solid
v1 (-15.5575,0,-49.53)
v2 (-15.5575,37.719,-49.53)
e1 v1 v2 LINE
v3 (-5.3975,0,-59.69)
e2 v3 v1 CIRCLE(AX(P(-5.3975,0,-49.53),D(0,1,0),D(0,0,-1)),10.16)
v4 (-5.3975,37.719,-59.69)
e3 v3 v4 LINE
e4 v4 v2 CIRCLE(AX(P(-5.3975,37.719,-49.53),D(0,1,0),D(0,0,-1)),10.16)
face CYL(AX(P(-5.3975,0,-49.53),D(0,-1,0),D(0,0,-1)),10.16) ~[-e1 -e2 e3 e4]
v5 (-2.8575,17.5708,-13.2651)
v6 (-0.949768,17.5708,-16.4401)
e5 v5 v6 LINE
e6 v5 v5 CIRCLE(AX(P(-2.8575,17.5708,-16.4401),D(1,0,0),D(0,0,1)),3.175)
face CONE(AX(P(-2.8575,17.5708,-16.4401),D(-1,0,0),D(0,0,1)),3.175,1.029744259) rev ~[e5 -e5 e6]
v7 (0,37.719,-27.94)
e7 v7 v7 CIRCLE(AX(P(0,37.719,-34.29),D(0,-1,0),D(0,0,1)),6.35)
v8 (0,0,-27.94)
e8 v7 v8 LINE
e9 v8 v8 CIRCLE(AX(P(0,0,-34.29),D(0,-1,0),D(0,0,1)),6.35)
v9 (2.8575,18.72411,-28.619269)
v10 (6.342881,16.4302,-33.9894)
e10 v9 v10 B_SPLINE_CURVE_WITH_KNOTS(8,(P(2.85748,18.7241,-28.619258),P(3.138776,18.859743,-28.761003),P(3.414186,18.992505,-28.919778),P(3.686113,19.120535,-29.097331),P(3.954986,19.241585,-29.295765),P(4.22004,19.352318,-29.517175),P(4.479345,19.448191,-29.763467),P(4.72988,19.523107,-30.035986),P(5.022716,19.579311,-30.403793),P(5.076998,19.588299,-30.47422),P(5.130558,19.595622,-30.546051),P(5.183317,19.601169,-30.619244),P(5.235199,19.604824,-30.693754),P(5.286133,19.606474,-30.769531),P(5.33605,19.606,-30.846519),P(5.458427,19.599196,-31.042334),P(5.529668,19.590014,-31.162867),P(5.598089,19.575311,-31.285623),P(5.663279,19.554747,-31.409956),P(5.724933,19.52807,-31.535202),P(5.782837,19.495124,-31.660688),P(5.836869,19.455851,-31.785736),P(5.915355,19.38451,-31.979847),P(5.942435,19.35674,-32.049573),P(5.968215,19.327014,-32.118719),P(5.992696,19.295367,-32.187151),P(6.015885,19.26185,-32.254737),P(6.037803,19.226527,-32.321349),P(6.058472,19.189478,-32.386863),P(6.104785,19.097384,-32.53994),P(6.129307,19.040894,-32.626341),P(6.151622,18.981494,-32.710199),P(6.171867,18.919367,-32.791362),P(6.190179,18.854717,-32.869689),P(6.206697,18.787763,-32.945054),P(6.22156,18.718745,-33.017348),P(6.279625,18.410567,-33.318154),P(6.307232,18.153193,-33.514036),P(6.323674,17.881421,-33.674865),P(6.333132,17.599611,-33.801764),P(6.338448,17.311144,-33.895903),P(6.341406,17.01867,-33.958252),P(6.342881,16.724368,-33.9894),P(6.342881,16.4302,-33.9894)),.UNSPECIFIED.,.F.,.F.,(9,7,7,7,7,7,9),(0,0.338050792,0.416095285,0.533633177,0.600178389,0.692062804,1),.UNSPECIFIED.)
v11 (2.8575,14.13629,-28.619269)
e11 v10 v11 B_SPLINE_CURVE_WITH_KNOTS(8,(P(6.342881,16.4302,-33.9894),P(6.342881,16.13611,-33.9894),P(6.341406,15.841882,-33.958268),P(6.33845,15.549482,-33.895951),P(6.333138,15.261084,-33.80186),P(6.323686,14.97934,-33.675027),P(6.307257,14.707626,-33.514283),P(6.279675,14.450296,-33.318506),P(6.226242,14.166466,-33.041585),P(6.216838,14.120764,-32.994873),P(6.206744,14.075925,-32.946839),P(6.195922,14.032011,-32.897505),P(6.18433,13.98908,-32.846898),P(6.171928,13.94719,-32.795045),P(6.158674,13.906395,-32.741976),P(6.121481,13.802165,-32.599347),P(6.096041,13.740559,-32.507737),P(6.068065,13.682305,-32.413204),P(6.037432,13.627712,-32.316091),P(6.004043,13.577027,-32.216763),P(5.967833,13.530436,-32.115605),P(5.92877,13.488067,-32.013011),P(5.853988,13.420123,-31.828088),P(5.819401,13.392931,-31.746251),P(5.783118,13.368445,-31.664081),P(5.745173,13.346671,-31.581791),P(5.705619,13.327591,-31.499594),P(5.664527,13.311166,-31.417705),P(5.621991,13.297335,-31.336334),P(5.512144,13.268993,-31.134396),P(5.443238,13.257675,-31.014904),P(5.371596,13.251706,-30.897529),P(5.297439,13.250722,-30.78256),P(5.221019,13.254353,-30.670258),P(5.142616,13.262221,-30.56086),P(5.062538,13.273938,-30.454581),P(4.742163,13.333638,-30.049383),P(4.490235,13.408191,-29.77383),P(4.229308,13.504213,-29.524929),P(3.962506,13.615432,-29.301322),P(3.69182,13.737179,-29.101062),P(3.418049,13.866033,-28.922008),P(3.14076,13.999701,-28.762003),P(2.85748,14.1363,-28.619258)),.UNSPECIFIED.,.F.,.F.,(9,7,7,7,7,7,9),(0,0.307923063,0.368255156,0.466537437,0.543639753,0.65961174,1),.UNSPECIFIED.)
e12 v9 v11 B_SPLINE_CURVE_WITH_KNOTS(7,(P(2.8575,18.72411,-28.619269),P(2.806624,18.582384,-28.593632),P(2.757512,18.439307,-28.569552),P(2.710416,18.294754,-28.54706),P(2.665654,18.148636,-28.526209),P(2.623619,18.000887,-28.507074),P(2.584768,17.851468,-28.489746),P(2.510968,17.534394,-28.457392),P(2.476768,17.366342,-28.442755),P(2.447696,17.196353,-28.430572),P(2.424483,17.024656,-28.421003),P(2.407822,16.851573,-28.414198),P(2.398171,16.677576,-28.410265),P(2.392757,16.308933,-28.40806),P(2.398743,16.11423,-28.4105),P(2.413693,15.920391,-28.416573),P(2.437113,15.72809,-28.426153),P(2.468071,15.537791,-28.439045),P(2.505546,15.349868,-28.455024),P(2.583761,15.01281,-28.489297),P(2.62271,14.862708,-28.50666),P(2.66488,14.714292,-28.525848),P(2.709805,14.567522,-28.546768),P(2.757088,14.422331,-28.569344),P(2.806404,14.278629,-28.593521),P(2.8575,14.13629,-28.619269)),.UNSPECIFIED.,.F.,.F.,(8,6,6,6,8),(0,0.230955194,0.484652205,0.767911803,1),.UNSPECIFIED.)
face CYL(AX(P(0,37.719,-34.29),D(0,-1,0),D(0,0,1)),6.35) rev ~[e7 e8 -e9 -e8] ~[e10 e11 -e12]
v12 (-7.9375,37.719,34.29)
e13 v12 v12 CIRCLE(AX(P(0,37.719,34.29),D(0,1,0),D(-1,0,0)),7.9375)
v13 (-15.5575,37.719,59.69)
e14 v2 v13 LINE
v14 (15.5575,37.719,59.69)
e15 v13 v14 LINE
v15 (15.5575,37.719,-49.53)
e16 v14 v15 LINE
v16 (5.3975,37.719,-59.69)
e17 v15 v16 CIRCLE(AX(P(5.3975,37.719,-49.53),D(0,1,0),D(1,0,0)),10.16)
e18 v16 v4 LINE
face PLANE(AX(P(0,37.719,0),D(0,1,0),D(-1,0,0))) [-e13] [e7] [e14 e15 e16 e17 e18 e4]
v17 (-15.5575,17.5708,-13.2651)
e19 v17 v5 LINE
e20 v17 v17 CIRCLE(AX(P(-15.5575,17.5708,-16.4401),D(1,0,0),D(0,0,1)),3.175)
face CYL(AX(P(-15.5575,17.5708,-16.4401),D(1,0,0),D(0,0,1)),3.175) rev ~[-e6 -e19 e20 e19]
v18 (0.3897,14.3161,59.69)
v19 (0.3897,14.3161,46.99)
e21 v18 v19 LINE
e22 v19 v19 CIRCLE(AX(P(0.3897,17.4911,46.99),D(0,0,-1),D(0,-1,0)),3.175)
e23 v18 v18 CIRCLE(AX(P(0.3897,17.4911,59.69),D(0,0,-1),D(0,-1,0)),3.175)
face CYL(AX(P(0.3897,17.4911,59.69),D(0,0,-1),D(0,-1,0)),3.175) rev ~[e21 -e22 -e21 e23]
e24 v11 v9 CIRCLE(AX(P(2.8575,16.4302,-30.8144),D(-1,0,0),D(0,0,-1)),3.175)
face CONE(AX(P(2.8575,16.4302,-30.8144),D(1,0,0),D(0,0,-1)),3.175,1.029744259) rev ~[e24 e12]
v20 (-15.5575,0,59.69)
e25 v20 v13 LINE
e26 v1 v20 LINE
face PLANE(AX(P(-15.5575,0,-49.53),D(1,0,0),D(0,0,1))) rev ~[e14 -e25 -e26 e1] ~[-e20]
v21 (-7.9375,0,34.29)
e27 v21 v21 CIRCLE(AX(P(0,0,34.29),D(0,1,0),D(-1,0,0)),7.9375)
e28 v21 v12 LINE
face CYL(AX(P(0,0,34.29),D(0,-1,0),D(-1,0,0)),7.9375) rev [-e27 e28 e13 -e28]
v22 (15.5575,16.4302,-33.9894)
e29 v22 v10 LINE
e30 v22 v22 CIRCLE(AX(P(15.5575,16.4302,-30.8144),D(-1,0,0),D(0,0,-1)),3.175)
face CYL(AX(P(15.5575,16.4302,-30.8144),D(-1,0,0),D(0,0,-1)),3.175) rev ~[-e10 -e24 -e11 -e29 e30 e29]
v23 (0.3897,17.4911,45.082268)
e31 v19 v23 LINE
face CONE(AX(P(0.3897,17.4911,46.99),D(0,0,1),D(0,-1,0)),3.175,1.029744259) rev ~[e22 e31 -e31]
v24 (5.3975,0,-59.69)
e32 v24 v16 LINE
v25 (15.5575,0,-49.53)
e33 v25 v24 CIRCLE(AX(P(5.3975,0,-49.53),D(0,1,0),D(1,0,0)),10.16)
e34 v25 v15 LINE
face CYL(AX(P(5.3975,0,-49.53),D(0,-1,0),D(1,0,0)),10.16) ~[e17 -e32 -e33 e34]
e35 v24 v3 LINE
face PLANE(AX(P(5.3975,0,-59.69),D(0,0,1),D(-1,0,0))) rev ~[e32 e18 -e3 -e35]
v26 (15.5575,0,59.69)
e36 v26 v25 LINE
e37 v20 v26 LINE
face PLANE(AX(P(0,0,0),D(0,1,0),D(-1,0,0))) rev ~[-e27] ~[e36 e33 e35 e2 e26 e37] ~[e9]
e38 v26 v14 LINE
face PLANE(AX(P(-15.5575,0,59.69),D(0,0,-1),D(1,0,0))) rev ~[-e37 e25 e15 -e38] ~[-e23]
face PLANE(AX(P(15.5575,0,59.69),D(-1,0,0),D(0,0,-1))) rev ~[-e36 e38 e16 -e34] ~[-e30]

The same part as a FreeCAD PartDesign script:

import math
import FreeCAD as App
import Part
import Sketcher

V = App.Vector
Q = App.Units.Quantity

doc = App.newDocument("Part")
body = doc.addObject("PartDesign::Body", "Body")

sketch1 = body.newObject("Sketcher::SketchObject", "Sketch")
sketch1.AttachmentSupport = (doc.getObject("XZ_Plane"), [""])
sketch1.MapMode = "FlatFace"
sketch1.addGeometry([
    Part.ArcOfCircle(Part.Circle(V(5, -50, 0), V(0, 0, 1), 10), math.radians(-90), math.radians(0)),
    Part.LineSegment(V(5, -60, 0), V(-5, -60, 0)),
    Part.ArcOfCircle(Part.Circle(V(-5, -50, 0), V(0, 0, 1), 10), math.radians(180), math.radians(270)),
    Part.LineSegment(V(-16, -50, 0), V(-16, 60, 0)),
    Part.LineSegment(V(-16, 60, 0), V(16, 60, 0)),
    Part.LineSegment(V(16, 60, 0), V(16, -50, 0)),
    Part.Circle(V(0, 34, 0), V(0, 0, 1), 8),
], False)
sketch1.addConstraint([
    Sketcher.Constraint("Tangent", 0, 1, 1, 1),
    Sketcher.Constraint("Tangent", 1, 2, 2, 2),
    Sketcher.Constraint("Tangent", 2, 1, 3, 1),
    Sketcher.Constraint("Coincident", 3, 2, 4, 1),
    Sketcher.Constraint("Coincident", 4, 2, 5, 1),
    Sketcher.Constraint("Tangent", 5, 2, 0, 2),
    Sketcher.Constraint("Horizontal", 1),
    Sketcher.Constraint("Vertical", 3),
    Sketcher.Constraint("Horizontal", 4),
    Sketcher.Constraint("Vertical", 5),
    Sketcher.Constraint("Equal", 0, 2),
    Sketcher.Constraint("PointOnObject", 6, 3, -2),
    Sketcher.Constraint("Radius", 0, Q("0.4 in")),
    Sketcher.Constraint("Diameter", 6, Q("0.625 in")),
    Sketcher.Constraint("DistanceY", 6, 3, 3, 2, Q("1 in")),
    Sketcher.Constraint("DistanceY", 1, 2, 3, 2, Q("4.7 in")),
    Sketcher.Constraint("DistanceX", 4, 1, 4, 2, Q("1.225 in")),
    Sketcher.Constraint("DistanceY", 0, 3, -1, 1, Q("1.95 in")),
    Sketcher.Constraint("DistanceX", -1, 1, 0, 3, Q("0.2125 in")),
])
pad1 = body.newObject("PartDesign::Pad", "Pad")
pad1.Profile = sketch1
pad1.Length = Q("1.485 in")
pad1.Reversed = True

sketch2 = body.newObject("Sketcher::SketchObject", "Sketch001")
sketch2.AttachmentSupport = (doc.getObject("XZ_Plane"), [""])
sketch2.MapMode = "FlatFace"
sketch2.AttachmentOffset = App.Placement(V(0, 0, -1.485 * 25.4), App.Rotation())
sketch2.addGeometry(Part.Circle(V(0, -34, 0), V(0, 0, 1), 6), False)
sketch2.addConstraint([
    Sketcher.Constraint("PointOnObject", 0, 3, -2),
    Sketcher.Constraint("Diameter", 0, Q("0.5 in")),
    Sketcher.Constraint("DistanceY", 0, 3, -1, 1, Q("1.35 in")),
])
doc.recompute()
hole = body.newObject("PartDesign::Hole", "Hole")
hole.Profile = sketch2
hole.ThreadType = "None"
hole.Diameter = Q("0.5 in")
hole.DepthType = "ThroughAll"
hole.Reversed = True

sketch3 = body.newObject("Sketcher::SketchObject", "Sketch002")
sketch3.AttachmentSupport = (doc.getObject("XY_Plane"), [""])
sketch3.MapMode = "FlatFace"
sketch3.AttachmentOffset = App.Placement(V(0, 0, 2.35 * 25.4), App.Rotation())
sketch3.addGeometry(Part.Circle(V(0.4, 17.5, 0), V(0, 0, 1), 3.2), False)
sketch3.addConstraint([
    Sketcher.Constraint("Diameter", 0, Q("0.25 in")),
    Sketcher.Constraint("DistanceX", -1, 1, 0, 3, 0.3897),
    Sketcher.Constraint("DistanceY", -1, 1, 0, 3, 17.491),
])
doc.recompute()
hole2 = body.newObject("PartDesign::Hole", "Hole001")
hole2.Profile = sketch3
hole2.ThreadType = "None"
hole2.Diameter = Q("0.25 in")
hole2.DepthType = "Dimension"
hole2.Depth = Q("0.5 in")
hole2.DrillPoint = "Angled"
hole2.DrillPointAngle = 118

sketch4 = body.newObject("Sketcher::SketchObject", "Sketch003")
sketch4.AttachmentSupport = (doc.getObject("YZ_Plane"), [""])
sketch4.MapMode = "FlatFace"
sketch4.AttachmentOffset = App.Placement(V(0, 0, -0.6125 * 25.4), App.Rotation())
sketch4.addGeometry(Part.Circle(V(17.6, -16.4, 0), V(0, 0, 1), 3.2), False)
sketch4.addConstraint([
    Sketcher.Constraint("Diameter", 0, Q("0.25 in")),
    Sketcher.Constraint("DistanceX", -1, 1, 0, 3, 17.5708),
    Sketcher.Constraint("DistanceY", 0, 3, -1, 1, 16.44),
])
doc.recompute()
hole3 = body.newObject("PartDesign::Hole", "Hole002")
hole3.Profile = sketch4
hole3.ThreadType = "None"
hole3.Diameter = Q("0.25 in")
hole3.DepthType = "Dimension"
hole3.Depth = Q("0.5 in")
hole3.DrillPoint = "Angled"
hole3.DrillPointAngle = 118
hole3.Reversed = True

sketch5 = body.newObject("Sketcher::SketchObject", "Sketch004")
sketch5.AttachmentSupport = (doc.getObject("YZ_Plane"), [""])
sketch5.MapMode = "FlatFace"
sketch5.AttachmentOffset = App.Placement(V(0, 0, 0.6125 * 25.4), App.Rotation())
sketch5.addGeometry(Part.Circle(V(16.4, -30.8, 0), V(0, 0, 1), 3.2), False)
sketch5.addConstraint([
    Sketcher.Constraint("Diameter", 0, Q("0.25 in")),
    Sketcher.Constraint("DistanceX", -1, 1, 0, 3, 16.4302),
    Sketcher.Constraint("DistanceY", 0, 3, -1, 1, 30.8144),
])
doc.recompute()
hole4 = body.newObject("PartDesign::Hole", "Hole003")
hole4.Profile = sketch5
hole4.ThreadType = "None"
hole4.Diameter = Q("0.25 in")
hole4.DepthType = "Dimension"
hole4.Depth = Q("0.5 in")
hole4.DrillPoint = "Angled"
hole4.DrillPointAngle = 118

doc.recompute()
